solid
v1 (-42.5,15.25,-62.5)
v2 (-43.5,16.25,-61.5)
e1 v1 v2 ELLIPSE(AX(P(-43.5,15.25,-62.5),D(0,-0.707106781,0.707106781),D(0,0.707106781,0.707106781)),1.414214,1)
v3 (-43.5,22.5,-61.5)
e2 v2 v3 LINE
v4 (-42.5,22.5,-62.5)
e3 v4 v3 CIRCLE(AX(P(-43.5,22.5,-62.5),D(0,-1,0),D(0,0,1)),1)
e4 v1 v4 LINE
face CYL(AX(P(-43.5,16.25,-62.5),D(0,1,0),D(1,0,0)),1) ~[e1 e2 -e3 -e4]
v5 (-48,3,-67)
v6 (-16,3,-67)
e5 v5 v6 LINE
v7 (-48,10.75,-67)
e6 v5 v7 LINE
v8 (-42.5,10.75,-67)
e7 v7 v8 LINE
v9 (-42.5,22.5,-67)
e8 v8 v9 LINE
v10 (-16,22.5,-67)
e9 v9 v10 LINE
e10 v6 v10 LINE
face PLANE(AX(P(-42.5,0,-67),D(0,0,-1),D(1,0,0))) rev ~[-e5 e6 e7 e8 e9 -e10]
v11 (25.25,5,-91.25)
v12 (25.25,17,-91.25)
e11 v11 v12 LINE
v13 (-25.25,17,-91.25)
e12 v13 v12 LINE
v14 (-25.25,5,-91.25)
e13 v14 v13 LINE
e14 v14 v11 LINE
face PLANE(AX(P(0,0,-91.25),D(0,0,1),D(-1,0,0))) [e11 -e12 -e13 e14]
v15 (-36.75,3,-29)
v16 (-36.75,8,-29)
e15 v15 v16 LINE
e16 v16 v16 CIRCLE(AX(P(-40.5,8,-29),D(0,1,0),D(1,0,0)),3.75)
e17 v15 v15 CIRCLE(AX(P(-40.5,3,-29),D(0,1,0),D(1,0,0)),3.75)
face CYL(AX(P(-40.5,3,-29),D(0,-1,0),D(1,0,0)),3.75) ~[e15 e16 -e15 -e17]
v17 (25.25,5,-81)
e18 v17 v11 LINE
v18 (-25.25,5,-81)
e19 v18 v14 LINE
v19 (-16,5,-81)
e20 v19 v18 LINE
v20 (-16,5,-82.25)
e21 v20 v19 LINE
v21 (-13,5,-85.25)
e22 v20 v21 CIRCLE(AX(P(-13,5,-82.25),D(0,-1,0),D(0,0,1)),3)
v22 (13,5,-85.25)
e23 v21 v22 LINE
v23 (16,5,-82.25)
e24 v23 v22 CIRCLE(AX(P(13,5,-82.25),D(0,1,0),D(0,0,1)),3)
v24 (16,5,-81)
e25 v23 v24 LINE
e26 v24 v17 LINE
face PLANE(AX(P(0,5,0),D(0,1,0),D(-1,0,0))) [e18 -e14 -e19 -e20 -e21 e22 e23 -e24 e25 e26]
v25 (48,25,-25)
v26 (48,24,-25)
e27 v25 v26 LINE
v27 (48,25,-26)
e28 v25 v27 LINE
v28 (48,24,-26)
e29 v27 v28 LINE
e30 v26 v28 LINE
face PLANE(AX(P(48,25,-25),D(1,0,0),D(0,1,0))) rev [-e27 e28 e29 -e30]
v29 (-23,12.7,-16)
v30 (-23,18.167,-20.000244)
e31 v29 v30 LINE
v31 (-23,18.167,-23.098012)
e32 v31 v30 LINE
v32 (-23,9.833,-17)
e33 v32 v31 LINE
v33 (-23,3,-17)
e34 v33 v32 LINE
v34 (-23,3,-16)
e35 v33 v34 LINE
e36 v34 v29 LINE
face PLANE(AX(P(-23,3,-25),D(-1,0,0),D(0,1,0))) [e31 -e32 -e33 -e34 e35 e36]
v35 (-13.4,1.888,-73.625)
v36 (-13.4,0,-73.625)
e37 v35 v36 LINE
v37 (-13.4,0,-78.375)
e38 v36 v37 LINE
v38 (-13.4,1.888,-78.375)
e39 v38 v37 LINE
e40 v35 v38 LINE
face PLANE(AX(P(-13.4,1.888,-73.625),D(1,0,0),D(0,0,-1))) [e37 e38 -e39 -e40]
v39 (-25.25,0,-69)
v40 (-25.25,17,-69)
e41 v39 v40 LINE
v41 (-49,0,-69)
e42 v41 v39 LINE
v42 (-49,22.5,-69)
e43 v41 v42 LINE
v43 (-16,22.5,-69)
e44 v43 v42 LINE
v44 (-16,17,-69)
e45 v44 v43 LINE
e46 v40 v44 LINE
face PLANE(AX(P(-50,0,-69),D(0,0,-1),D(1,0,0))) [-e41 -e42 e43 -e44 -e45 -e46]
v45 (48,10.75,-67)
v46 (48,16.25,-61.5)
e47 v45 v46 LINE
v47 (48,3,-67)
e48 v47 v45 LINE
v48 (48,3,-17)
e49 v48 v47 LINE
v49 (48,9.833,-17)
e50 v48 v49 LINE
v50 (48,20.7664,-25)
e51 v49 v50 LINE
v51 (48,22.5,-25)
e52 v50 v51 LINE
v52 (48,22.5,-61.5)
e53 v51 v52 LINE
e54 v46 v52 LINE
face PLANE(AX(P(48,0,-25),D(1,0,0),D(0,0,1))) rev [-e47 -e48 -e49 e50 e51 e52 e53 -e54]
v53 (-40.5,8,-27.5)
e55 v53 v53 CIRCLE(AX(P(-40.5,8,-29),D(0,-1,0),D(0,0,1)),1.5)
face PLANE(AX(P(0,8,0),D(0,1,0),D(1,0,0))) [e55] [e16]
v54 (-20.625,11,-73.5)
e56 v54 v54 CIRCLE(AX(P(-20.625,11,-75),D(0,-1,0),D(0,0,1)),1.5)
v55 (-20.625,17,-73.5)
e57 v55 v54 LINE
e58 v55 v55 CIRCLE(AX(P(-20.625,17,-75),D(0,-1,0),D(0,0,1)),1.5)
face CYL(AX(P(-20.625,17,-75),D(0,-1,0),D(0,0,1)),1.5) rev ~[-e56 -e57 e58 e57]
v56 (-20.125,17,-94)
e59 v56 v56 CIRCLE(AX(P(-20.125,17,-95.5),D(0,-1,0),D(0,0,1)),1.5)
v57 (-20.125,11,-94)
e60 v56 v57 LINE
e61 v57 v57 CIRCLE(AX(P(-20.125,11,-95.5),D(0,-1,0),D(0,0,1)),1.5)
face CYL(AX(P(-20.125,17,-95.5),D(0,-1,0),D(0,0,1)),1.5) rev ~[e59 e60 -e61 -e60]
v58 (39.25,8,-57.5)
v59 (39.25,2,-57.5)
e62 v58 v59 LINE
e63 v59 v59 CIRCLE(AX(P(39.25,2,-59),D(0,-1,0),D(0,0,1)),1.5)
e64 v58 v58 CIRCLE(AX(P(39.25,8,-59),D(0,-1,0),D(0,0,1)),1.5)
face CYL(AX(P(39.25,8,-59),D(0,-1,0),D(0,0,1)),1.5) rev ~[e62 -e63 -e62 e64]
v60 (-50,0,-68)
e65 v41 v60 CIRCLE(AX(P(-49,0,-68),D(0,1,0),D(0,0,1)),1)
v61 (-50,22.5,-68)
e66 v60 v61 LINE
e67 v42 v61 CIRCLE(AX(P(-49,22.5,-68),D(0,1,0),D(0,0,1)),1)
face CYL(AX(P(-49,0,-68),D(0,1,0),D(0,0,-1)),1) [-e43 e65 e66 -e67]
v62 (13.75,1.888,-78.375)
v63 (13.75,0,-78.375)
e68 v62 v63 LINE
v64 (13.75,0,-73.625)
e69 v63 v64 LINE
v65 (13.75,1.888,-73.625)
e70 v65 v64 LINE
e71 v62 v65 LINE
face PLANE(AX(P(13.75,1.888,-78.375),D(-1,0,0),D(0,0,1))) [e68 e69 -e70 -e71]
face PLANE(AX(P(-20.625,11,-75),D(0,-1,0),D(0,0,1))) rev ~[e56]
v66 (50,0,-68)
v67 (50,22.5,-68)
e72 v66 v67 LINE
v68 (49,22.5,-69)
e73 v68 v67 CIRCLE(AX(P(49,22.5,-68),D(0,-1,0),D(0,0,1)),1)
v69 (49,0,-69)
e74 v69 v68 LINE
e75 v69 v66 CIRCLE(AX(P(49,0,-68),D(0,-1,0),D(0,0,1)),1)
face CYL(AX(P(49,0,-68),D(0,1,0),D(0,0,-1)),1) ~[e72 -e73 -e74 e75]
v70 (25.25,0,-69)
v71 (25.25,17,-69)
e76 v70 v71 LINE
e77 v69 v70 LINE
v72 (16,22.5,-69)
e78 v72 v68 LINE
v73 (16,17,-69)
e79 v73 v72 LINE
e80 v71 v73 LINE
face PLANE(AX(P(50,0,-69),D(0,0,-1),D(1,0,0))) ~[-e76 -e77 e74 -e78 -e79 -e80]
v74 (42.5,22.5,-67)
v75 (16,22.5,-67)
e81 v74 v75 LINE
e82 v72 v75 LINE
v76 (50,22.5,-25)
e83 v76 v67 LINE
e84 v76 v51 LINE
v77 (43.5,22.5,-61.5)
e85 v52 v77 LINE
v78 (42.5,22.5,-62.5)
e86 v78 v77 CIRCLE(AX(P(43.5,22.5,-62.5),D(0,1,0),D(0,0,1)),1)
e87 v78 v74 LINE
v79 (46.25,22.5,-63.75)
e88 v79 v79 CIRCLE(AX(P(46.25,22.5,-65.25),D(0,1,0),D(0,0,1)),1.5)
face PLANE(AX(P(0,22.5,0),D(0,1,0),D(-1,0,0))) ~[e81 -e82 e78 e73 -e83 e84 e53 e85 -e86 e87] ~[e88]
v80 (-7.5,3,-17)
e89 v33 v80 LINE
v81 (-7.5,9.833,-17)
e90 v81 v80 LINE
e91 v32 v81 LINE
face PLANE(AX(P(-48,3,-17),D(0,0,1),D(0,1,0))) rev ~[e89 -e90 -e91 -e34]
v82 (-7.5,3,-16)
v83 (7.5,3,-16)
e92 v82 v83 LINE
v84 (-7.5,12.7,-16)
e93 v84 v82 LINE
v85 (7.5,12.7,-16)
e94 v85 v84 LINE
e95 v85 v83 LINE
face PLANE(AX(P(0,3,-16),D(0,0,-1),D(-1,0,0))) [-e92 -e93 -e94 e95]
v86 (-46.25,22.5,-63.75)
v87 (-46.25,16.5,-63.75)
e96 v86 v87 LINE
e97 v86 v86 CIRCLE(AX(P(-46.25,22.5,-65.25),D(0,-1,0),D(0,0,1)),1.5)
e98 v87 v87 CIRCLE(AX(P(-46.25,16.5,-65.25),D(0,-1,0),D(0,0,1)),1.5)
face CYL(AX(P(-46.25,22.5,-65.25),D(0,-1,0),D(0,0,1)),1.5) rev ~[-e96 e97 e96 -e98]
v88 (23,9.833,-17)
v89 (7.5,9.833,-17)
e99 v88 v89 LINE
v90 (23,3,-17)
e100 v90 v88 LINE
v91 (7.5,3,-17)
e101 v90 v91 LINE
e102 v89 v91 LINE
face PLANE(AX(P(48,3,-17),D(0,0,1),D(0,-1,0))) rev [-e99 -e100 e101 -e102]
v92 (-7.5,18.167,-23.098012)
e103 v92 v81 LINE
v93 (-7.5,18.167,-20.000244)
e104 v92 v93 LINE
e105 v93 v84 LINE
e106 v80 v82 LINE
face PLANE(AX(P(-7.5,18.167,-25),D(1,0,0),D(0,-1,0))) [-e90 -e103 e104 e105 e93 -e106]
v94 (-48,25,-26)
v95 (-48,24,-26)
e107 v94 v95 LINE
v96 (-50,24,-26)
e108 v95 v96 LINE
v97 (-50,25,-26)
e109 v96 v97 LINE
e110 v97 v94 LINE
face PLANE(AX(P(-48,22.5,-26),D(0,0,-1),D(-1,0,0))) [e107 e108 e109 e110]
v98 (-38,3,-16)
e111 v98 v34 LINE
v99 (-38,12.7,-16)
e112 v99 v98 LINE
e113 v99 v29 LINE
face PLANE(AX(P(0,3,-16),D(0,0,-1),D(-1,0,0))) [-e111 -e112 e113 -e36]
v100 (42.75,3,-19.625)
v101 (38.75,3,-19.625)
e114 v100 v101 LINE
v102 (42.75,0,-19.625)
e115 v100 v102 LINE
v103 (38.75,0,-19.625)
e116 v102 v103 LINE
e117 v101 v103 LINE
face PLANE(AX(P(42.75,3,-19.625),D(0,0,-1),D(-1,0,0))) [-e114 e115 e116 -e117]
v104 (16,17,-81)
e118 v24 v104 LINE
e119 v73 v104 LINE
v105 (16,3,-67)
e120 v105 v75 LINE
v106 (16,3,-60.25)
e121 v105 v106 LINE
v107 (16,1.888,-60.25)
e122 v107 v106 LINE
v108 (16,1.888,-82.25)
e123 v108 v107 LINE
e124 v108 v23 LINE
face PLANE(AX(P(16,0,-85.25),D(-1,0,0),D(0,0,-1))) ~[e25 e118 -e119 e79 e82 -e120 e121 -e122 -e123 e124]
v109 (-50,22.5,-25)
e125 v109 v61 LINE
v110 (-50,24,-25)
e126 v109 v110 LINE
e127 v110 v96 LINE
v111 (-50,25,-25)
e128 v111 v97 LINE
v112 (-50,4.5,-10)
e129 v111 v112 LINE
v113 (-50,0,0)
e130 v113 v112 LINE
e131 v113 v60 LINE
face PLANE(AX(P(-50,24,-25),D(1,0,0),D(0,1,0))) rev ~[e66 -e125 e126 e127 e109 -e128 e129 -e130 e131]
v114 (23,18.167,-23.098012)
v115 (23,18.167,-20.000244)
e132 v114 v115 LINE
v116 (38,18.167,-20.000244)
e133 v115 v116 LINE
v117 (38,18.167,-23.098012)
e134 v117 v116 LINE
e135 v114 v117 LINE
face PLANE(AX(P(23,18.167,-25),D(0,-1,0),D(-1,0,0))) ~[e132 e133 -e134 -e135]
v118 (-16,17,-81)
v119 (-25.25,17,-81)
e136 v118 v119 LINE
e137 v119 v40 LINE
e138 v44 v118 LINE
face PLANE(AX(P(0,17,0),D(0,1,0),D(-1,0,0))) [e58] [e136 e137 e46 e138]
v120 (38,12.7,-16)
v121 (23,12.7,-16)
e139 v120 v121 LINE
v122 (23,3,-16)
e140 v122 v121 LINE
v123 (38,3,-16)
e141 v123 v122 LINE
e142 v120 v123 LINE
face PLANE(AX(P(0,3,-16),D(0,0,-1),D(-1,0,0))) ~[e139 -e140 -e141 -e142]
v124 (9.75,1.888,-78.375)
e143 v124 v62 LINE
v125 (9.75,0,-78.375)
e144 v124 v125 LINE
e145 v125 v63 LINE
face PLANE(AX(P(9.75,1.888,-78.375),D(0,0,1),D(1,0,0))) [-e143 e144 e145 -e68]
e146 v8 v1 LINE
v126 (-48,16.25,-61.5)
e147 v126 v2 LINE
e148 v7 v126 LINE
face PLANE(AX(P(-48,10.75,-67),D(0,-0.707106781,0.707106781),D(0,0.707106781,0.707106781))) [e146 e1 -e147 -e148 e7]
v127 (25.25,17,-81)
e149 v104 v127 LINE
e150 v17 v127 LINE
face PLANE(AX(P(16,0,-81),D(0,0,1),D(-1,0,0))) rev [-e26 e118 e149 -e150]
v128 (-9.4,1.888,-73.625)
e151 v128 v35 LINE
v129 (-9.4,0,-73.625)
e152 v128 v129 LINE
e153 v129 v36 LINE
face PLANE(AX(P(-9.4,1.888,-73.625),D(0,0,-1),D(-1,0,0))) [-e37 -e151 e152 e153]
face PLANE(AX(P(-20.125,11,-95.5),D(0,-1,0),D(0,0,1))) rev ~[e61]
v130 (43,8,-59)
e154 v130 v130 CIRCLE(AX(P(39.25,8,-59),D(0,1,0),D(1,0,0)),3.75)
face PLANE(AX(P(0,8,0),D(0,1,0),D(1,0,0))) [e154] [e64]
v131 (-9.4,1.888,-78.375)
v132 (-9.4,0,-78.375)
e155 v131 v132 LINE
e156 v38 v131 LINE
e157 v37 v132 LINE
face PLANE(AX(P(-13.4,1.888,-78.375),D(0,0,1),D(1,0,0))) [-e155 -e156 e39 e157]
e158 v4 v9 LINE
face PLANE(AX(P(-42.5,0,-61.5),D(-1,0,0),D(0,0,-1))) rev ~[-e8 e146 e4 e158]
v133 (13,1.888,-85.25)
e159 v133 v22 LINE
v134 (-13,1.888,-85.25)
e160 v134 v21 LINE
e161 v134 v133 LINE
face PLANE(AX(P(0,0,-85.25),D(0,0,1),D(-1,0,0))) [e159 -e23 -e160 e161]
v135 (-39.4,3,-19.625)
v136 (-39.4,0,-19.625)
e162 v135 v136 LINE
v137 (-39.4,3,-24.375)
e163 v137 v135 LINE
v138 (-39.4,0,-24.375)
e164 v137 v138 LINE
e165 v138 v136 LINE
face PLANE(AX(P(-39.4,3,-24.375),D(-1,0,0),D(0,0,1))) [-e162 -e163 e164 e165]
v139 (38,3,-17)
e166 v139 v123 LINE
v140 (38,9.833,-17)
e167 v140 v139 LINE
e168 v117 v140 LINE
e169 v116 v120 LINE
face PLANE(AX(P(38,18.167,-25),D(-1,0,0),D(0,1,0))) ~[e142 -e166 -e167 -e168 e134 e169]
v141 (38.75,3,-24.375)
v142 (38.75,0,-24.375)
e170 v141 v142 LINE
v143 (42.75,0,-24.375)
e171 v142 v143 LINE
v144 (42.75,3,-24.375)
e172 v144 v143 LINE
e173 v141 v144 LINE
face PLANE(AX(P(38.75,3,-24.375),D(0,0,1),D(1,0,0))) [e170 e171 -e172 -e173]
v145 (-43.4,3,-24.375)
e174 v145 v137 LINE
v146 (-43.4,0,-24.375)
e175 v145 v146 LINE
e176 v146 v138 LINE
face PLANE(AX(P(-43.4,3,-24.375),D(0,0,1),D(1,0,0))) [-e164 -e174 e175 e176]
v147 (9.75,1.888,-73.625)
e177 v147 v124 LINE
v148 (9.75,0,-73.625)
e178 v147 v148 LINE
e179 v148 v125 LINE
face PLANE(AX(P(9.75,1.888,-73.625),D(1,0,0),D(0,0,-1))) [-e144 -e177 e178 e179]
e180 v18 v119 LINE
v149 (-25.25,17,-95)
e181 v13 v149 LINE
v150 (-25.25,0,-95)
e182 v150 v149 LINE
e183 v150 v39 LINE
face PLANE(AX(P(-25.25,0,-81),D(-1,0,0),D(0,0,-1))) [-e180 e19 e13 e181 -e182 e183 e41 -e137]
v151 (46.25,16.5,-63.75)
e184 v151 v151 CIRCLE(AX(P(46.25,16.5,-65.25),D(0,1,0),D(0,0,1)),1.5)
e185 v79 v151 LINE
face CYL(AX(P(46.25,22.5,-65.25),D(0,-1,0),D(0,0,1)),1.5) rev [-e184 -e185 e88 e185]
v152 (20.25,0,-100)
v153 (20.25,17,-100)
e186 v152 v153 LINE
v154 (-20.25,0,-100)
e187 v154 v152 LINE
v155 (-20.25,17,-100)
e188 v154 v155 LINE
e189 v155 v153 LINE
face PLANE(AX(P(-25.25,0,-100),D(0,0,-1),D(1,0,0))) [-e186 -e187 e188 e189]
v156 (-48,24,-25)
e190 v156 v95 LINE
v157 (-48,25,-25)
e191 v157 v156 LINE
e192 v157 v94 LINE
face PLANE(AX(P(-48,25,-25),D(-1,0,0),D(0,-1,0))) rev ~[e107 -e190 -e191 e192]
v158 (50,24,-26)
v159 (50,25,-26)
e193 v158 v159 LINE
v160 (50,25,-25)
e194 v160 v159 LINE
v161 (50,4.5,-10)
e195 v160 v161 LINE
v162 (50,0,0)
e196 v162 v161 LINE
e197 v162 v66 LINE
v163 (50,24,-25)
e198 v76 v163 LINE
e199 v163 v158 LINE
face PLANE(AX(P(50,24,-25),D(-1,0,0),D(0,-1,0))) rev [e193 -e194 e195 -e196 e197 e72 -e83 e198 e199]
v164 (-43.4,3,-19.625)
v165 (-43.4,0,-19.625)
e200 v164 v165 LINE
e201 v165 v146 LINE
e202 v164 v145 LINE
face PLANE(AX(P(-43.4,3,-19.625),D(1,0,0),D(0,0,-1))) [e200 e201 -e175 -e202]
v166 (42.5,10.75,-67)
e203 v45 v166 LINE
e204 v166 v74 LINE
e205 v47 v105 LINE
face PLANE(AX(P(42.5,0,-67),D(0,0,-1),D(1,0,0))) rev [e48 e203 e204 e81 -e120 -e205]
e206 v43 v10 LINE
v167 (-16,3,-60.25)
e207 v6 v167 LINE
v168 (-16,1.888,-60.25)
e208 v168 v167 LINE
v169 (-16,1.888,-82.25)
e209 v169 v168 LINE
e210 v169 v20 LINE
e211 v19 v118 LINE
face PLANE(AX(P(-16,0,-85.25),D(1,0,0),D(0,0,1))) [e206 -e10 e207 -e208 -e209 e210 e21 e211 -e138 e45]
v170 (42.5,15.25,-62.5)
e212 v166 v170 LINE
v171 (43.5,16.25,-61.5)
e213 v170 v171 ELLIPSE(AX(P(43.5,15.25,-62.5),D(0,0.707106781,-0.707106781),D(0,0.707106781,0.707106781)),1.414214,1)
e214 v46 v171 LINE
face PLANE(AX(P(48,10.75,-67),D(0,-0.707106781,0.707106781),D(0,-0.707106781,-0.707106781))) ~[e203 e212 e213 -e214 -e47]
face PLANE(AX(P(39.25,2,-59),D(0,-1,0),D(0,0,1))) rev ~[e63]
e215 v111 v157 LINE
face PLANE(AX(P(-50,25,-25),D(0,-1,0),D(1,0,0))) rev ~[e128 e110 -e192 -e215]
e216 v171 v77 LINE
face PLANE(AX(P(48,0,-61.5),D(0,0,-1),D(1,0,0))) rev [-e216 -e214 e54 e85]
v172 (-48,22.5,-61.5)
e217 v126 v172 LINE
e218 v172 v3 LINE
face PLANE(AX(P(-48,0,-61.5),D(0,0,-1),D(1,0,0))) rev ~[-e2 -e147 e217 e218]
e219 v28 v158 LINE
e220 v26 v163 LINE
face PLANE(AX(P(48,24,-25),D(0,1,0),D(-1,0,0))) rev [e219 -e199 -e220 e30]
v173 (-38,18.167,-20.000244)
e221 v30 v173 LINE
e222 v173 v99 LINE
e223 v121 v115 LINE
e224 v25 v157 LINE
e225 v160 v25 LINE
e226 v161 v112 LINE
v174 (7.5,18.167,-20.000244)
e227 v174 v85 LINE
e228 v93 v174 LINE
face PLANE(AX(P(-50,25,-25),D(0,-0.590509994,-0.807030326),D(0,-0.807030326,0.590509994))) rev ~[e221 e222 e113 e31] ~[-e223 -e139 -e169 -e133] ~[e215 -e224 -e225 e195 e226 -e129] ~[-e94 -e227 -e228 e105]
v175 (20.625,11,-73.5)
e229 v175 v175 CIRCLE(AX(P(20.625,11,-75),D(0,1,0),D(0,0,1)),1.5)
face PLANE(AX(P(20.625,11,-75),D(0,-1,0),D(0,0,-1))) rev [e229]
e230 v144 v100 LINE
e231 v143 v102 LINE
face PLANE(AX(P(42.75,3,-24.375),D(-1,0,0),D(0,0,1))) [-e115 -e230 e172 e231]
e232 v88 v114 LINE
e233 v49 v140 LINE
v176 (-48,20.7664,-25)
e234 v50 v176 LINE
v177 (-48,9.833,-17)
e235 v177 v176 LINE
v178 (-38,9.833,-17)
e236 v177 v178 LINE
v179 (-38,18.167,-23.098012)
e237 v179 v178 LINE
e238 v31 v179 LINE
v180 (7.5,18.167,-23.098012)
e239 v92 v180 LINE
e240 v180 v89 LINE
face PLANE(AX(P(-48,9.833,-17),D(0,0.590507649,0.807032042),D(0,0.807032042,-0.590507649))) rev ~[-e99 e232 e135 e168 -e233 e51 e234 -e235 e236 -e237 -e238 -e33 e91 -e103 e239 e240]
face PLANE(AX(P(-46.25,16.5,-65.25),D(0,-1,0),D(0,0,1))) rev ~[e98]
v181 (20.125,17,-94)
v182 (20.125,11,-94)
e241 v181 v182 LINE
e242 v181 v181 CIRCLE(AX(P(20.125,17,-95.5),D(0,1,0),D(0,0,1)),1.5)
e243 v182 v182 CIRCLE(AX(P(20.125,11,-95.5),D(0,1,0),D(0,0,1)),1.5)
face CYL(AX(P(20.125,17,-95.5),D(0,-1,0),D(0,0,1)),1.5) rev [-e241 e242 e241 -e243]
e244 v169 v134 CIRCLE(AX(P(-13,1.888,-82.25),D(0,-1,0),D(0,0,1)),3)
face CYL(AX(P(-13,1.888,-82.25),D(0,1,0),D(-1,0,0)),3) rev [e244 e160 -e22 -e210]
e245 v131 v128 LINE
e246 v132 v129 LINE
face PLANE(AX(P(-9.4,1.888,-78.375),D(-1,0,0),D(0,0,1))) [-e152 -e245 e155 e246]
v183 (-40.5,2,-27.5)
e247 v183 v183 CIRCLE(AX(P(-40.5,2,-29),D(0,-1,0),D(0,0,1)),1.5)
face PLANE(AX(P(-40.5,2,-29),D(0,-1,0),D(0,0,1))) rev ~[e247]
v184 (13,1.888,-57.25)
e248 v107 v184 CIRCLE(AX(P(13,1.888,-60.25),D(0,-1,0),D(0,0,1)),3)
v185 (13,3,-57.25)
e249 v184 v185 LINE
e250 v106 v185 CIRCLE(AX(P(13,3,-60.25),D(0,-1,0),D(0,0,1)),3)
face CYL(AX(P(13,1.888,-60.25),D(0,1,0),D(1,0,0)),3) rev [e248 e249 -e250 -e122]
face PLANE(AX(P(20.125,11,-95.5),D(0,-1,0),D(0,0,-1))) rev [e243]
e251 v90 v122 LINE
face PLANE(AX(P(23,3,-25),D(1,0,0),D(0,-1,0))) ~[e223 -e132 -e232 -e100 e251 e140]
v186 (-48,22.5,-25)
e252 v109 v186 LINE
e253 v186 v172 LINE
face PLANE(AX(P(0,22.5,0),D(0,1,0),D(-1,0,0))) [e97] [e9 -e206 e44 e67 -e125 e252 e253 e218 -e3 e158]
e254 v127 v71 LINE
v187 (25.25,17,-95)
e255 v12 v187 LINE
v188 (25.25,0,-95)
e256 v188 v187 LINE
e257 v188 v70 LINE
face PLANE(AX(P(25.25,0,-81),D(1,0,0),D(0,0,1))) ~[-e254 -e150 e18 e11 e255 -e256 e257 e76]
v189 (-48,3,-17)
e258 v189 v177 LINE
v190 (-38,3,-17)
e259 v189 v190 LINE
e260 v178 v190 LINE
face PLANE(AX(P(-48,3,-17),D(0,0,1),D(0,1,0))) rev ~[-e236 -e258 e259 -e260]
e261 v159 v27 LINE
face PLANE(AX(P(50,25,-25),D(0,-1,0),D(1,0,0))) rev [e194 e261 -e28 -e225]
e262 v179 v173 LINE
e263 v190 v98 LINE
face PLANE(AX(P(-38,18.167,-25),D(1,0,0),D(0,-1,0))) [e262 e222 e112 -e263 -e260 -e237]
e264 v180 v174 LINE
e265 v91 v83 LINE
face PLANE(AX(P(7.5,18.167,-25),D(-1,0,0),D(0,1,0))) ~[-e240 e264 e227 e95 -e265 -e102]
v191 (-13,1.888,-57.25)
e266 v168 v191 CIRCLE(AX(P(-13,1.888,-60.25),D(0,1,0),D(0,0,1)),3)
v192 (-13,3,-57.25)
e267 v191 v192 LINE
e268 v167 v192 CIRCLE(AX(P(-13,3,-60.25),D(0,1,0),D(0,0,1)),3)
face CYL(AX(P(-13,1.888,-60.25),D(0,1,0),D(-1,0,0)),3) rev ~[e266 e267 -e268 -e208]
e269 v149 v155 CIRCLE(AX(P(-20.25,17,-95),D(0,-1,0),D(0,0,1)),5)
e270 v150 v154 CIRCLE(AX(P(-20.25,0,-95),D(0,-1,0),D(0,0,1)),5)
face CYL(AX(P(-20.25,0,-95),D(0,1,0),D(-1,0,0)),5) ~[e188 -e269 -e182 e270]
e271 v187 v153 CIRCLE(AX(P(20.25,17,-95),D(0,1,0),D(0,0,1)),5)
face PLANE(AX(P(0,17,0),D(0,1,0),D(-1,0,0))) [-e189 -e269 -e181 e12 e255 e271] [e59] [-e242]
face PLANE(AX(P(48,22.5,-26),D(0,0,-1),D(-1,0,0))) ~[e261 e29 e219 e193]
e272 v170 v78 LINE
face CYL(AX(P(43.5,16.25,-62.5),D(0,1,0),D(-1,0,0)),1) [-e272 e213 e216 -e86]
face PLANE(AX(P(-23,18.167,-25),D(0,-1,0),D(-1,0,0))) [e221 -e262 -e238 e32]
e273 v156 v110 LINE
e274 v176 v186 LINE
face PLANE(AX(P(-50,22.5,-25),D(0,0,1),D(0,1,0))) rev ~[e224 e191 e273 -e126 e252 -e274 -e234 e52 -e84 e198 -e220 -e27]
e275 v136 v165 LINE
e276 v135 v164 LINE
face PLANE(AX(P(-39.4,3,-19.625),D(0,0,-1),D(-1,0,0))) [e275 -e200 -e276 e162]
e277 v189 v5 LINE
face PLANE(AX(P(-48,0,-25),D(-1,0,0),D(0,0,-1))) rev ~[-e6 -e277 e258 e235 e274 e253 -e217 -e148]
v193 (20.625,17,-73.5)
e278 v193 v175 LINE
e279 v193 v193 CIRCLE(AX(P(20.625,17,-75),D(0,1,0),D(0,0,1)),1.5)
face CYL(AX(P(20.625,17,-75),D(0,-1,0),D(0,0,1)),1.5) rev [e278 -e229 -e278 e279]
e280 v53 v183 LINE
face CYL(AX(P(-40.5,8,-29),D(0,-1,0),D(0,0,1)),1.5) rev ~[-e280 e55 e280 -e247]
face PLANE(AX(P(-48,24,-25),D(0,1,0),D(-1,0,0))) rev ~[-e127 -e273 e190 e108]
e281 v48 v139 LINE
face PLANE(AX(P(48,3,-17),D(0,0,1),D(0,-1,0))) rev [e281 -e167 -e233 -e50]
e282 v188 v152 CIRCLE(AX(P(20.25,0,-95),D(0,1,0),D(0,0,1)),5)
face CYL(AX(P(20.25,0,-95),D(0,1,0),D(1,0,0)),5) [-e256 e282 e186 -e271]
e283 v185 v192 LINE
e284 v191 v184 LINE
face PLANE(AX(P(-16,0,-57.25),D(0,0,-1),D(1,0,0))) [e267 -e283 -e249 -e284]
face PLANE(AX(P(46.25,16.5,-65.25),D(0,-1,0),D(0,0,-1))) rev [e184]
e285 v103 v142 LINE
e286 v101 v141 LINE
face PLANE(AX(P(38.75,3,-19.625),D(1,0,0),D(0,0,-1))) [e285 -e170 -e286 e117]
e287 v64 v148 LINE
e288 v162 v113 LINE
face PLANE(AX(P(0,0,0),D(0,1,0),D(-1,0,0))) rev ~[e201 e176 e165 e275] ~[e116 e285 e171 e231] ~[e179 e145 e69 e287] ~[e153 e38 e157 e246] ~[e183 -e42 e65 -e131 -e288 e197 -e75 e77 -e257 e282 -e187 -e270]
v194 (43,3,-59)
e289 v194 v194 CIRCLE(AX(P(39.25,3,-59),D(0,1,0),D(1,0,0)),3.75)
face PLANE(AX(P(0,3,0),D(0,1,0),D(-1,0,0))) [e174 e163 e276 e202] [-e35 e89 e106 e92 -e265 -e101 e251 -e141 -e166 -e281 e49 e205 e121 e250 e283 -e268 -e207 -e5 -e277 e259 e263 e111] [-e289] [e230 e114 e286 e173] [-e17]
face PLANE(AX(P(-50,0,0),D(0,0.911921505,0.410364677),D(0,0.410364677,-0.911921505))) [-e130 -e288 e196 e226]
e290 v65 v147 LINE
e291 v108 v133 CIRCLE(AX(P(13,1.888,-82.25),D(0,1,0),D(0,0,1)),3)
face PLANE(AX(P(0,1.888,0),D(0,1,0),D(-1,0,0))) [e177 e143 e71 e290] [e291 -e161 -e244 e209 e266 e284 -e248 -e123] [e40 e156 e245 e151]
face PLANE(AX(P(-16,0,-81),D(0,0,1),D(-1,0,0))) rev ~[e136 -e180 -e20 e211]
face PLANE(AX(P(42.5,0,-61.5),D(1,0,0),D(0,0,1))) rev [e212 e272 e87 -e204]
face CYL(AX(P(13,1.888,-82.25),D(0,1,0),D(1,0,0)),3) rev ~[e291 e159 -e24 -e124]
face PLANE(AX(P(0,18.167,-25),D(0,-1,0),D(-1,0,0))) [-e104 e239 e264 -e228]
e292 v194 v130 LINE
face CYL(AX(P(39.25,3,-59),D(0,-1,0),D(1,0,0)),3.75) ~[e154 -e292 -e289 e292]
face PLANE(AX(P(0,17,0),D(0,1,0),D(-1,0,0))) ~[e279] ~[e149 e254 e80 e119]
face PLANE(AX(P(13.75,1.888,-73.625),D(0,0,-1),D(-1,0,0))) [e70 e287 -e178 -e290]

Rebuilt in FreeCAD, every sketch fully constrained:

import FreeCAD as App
import Part
import Sketcher
Q = App.Units.Quantity


def edges_at(feature, points):
    """Names of the edges that pass closest to the given points."""
    edges = feature.Shape.Edges
    near = lambda p: min(range(len(edges)), key=lambda i: edges[i].distToShape(Part.Vertex(*p))[0])
    return sorted({f"Edge{near(p) + 1}" for p in points})


def add_polygon(sketch, points):
    """Adds a closed chain of lines whose ends are joined by coincident constraints."""
    first, n = sketch.GeometryCount, len(points)
    for a, b in zip(points, points[1:] + points[:1]):
        sketch.addGeometry(Part.LineSegment(App.Vector(*a, 0), App.Vector(*b, 0)), False)
    for i in range(n):
        sketch.addConstraint(Sketcher.Constraint("Coincident", first + i, 2, first + (i + 1) % n, 1))

doc = App.newDocument("Part")
body = doc.addObject("PartDesign::Body", "Body")
body.AllowCompound = True

sketch1 = doc.addObject("Sketcher::SketchObject", "Sketch")
body.addObject(sketch1)
sketch1.AttachmentSupport = (doc.XZ_Plane, [""])
sketch1.MapMode = "FlatFace"
add_polygon(sketch1, [(-48, -25), (0, -25), (0, -57.25), (-16, -57.25), (-16, -67), (-42.5, -67), (-42.5, -61.5), (-48, -61.5)])
sketch1.addConstraint([
    Sketcher.Constraint("Horizontal", 0),
    Sketcher.Constraint("Vertical", 1),
    Sketcher.Constraint("Horizontal", 2),
    Sketcher.Constraint("Vertical", 3),
    Sketcher.Constraint("Horizontal", 4),
    Sketcher.Constraint("Vertical", 5),
    Sketcher.Constraint("Horizontal", 6),
    Sketcher.Constraint("Vertical", 7),
    Sketcher.Constraint("PointOnObject", 0, 2, -2),
    Sketcher.Constraint("Equal", 6, 5),
    Sketcher.Constraint("DistanceX", 2, 2, 2, 1, Q("16 mm")),
    Sketcher.Constraint("DistanceY", 0, 2, -1, 1, Q("25 mm")),
    Sketcher.Constraint("DistanceX", 0, 1, 0, 2, Q("48 mm")),
    Sketcher.Constraint("DistanceX", 4, 2, 4, 1, Q("26.5 mm")),
    Sketcher.Constraint("DistanceY", 7, 1, 7, 2, Q("36.5 mm")),
    Sketcher.Constraint("DistanceY", 1, 2, 1, 1, Q("32.25 mm")),
])
pad1 = doc.addObject("PartDesign::Pad", "Pad")
body.addObject(pad1)
pad1.Profile = sketch1
pad1.Length = 3
pad1.Reversed = True

sketch2 = doc.addObject("Sketcher::SketchObject", "Sketch001")
body.addObject(sketch2)
sketch2.AttachmentSupport = (doc.XZ_Plane, [""])
sketch2.MapMode = "FlatFace"
add_polygon(sketch2, [(-16, -57.25), (0, -57.25), (0, -85.25), (-16, -85.25)])
sketch2.addConstraint([
    Sketcher.Constraint("Horizontal", 0),
    Sketcher.Constraint("Vertical", 1),
    Sketcher.Constraint("Horizontal", 2),
    Sketcher.Constraint("Vertical", 3),
    Sketcher.Constraint("PointOnObject", 0, 2, -2),
    Sketcher.Constraint("DistanceX", 0, 1, 0, 2, Q("16 mm")),
    Sketcher.Constraint("DistanceY", 1, 2, 1, 1, Q("28 mm")),
    Sketcher.Constraint("DistanceY", 0, 2, -1, 1, Q("57.25 mm")),
])
pad2 = doc.addObject("PartDesign::Pad", "Pad001")
body.addObject(pad2)
pad2.Profile = sketch2
pad2.Length = 1.888
pad2.Reversed = True

sketch3 = doc.addObject("Sketcher::SketchObject", "Sketch002")
body.addObject(sketch3)
sketch3.AttachmentSupport = (doc.XZ_Plane, [""])
sketch3.MapMode = "FlatFace"
add_polygon(sketch3, [(-50, 0), (0, 0), (0, -25), (-48, -25), (-48, -61.5), (-42.5, -61.5), (-42.5, -67), (-16, -67), (-16, -69), (-50, -69)])
sketch3.addConstraint([
    Sketcher.Constraint("Horizontal", 0),
    Sketcher.Constraint("Vertical", 1),
    Sketcher.Constraint("Horizontal", 2),
    Sketcher.Constraint("Vertical", 3),
    Sketcher.Constraint("Horizontal", 4),
    Sketcher.Constraint("Vertical", 5),
    Sketcher.Constraint("Horizontal", 6),
    Sketcher.Constraint("Vertical", 7),
    Sketcher.Constraint("Horizontal", 8),
    Sketcher.Constraint("Vertical", 9),
    Sketcher.Constraint("Coincident", 0, 2, -1, 1),
    Sketcher.Constraint("Equal", 4, 5),
    Sketcher.Constraint("DistanceX", 0, 1, 0, 2, Q("50 mm")),
    Sketcher.Constraint("DistanceY", 1, 2, 1, 1, Q("25 mm")),
    Sketcher.Constraint("DistanceY", 7, 2, 7, 1, Q("2 mm")),
    Sketcher.Constraint("DistanceY", 9, 1, 9, 2, Q("69 mm")),
    Sketcher.Constraint("DistanceX", 6, 2, -1, 1, Q("16 mm")),
    Sketcher.Constraint("DistanceX", 8, 2, 3, 2, Q("2 mm")),
    Sketcher.Constraint("DistanceY", 7, 2, 4, 2, Q("7.5 mm")),
])
pad3 = doc.addObject("PartDesign::Pad", "Pad002")
body.addObject(pad3)
pad3.Profile = sketch3
pad3.Length = 22.5
pad3.Reversed = True

sketch4 = doc.addObject("Sketcher::SketchObject", "Sketch003")
body.addObject(sketch4)
sketch4.AttachmentSupport = (doc.XZ_Plane, [""])
sketch4.MapMode = "FlatFace"
add_polygon(sketch4, [(-25.25, -81), (-25.25, -69), (-16, -69), (-16, -81)])
add_polygon(sketch4, [(-25.25, -91.25), (0, -91.25), (0, -100), (-25.25, -100)])
sketch4.addConstraint([
    Sketcher.Constraint("Vertical", 0),
    Sketcher.Constraint("Horizontal", 1),
    Sketcher.Constraint("Vertical", 2),
    Sketcher.Constraint("Horizontal", 3),
    Sketcher.Constraint("Horizontal", 4),
    Sketcher.Constraint("Vertical", 5),
    Sketcher.Constraint("Horizontal", 6),
    Sketcher.Constraint("Vertical", 7),
    Sketcher.Constraint("PointOnObject", 4, 2, -2),
    Sketcher.Constraint("Vertical", 3, 2, 6, 2),
    Sketcher.Constraint("DistanceY", 0, 1, 0, 2, Q("12 mm")),
    Sketcher.Constraint("DistanceY", 0, 2, -1, 1, Q("69 mm")),
    Sketcher.Constraint("DistanceX", 1, 2, -1, 1, Q("16 mm")),
    Sketcher.Constraint("DistanceX", 4, 1, 4, 2, Q("25.25 mm")),
    Sketcher.Constraint("DistanceY", 5, 2, 5, 1, Q("8.75 mm")),
    Sketcher.Constraint("DistanceY", 4, 2, 2, 2, Q("10.25 mm")),
])
pad4 = doc.addObject("PartDesign::Pad", "Pad003")
body.addObject(pad4)
pad4.Profile = sketch4
pad4.Length = 17
pad4.Reversed = True

sketch5 = doc.addObject("Sketcher::SketchObject", "Sketch004")
body.addObject(sketch5)
sketch5.AttachmentSupport = (doc.XZ_Plane, [""])
sketch5.MapMode = "FlatFace"
add_polygon(sketch5, [(-16, -85.25), (0, -85.25), (0, -91.25), (-25.25, -91.25), (-25.25, -81), (-16, -81)])
sketch5.addConstraint([
    Sketcher.Constraint("Horizontal", 0),
    Sketcher.Constraint("Vertical", 1),
    Sketcher.Constraint("Horizontal", 2),
    Sketcher.Constraint("Vertical", 3),
    Sketcher.Constraint("Horizontal", 4),
    Sketcher.Constraint("Vertical", 5),
    Sketcher.Constraint("PointOnObject", 0, 2, -2),
    Sketcher.Constraint("DistanceX", 0, 1, 0, 2, Q("16 mm")),
    Sketcher.Constraint("DistanceY", 1, 2, 1, 1, Q("6 mm")),
    Sketcher.Constraint("DistanceX", 2, 2, 2, 1, Q("25.25 mm")),
    Sketcher.Constraint("DistanceY", 3, 1, 3, 2, Q("10.25 mm")),
    Sketcher.Constraint("DistanceY", 3, 2, -1, 1, Q("81 mm")),
])
pad5 = doc.addObject("PartDesign::Pad", "Pad004")
body.addObject(pad5)
pad5.Profile = sketch5
pad5.Length = 5
pad5.Reversed = True

sketch6 = doc.addObject("Sketcher::SketchObject", "Sketch005")
body.addObject(sketch6)
sketch6.AttachmentSupport = (doc.YZ_Plane, [""])
sketch6.MapMode = "FlatFace"
sketch6.AttachmentOffset = App.Placement(App.Vector(0, 0, -48), App.Rotation())
add_polygon(sketch6, [(3, -61.5), (3, -67), (10.75, -67), (16.25, -61.5)])
sketch6.addConstraint([
    Sketcher.Constraint("Vertical", 0),
    Sketcher.Constraint("Horizontal", 1),
    Sketcher.Constraint("Horizontal", 3),
    Sketcher.Constraint("Angle", 2, Q("45 deg")),
    Sketcher.Constraint("DistanceY", 0, 2, 0, 1, Q("5.5 mm")),
    Sketcher.Constraint("DistanceX", -1, 1, 0, 2, Q("3 mm")),
    Sketcher.Constraint("DistanceY", 0, 2, -1, 1, Q("67 mm")),
    Sketcher.Constraint("DistanceX", 1, 1, 1, 2, Q("7.75 mm")),
])
pocket1 = doc.addObject("PartDesign::Pocket", "Pocket")
body.addObject(pocket1)
pocket1.Profile = sketch6
pocket1.Length = 5.5
pocket1.Reversed = True

sketch7 = doc.addObject("Sketcher::SketchObject", "Sketch006")
body.addObject(sketch7)
sketch7.AttachmentSupport = (doc.YZ_Plane, [""])
sketch7.MapMode = "FlatFace"
sketch7.AttachmentOffset = App.Placement(App.Vector(0, 0, -50), App.Rotation())
add_polygon(sketch7, [(4.5, -10), (0, 0), (22.5, 0), (22.5, -23.170732)])
sketch7.addConstraint([
    Sketcher.Constraint("Horizontal", 1),
    Sketcher.Constraint("Vertical", 2),
    Sketcher.Constraint("Coincident", 0, 2, -1, 1),
    Sketcher.Constraint("DistanceY", 3, 2, -1, 1, Q("10 mm")),
    Sketcher.Constraint("DistanceX", -1, 1, 3, 2, Q("4.5 mm")),
    Sketcher.Constraint("DistanceX", 1, 1, 1, 2, Q("22.5 mm")),
    Sketcher.Constraint("Distance", 3, Q("22.304 mm")),
])
pocket2 = doc.addObject("PartDesign::Pocket", "Pocket001")
body.addObject(pocket2)
pocket2.Profile = sketch7
pocket2.Type = "ThroughAll"
pocket2.Reversed = True

sketch8 = doc.addObject("Sketcher::SketchObject", "Sketch007")
body.addObject(sketch8)
sketch8.AttachmentSupport = (doc.YZ_Plane, [""])
sketch8.MapMode = "FlatFace"
sketch8.AttachmentOffset = App.Placement(App.Vector(0, 0, -50), App.Rotation())
add_polygon(sketch8, [(22.5, -25), (22.5, -23.170732), (25, -25)])
sketch8.addConstraint([
    Sketcher.Constraint("Vertical", 0),
    Sketcher.Constraint("Horizontal", 2),
    Sketcher.Constraint("DistanceX", -1, 1, 1, 2, Q("25 mm")),
    Sketcher.Constraint("DistanceY", 1, 2, -1, 1, Q("25 mm")),
    Sketcher.Constraint("DistanceX", 2, 2, 2, 1, Q("2.5 mm")),
    Sketcher.Constraint("DistanceY", 0, 1, 0, 2, Q("1.8293 mm")),
])
pad6 = doc.addObject("PartDesign::Pad", "Pad005")
body.addObject(pad6)
pad6.Profile = sketch8
pad6.Length = 50

sketch9 = doc.addObject("Sketcher::SketchObject", "Sketch008")
body.addObject(sketch9)
sketch9.AttachmentSupport = (doc.XY_Plane, [""])
sketch9.MapMode = "FlatFace"
sketch9.AttachmentOffset = App.Placement(App.Vector(0, 0, -25), App.Rotation())
add_polygon(sketch9, [(-38, 18.167), (-23, 18.167), (-23, 3), (-38, 3)])
add_polygon(sketch9, [(-7.5, 18.167), (0, 18.167), (0, 3), (-7.5, 3)])
sketch9.addConstraint([
    Sketcher.Constraint("Horizontal", 0),
    Sketcher.Constraint("Vertical", 1),
    Sketcher.Constraint("Horizontal", 2),
    Sketcher.Constraint("Vertical", 3),
    Sketcher.Constraint("Horizontal", 4),
    Sketcher.Constraint("Vertical", 5),
    Sketcher.Constraint("Horizontal", 6),
    Sketcher.Constraint("Vertical", 7),
    Sketcher.Constraint("PointOnObject", 4, 2, -2),
    Sketcher.Constraint("Horizontal", 3, 2, 4, 2),
    Sketcher.Constraint("Horizontal", 2, 2, 5, 2),
    Sketcher.Constraint("DistanceX", 0, 1, 0, 2, Q("15 mm")),
    Sketcher.Constraint("DistanceX", 4, 1, 4, 2, Q("7.5 mm")),
    Sketcher.Constraint("DistanceY", -1, 1, 1, 2, Q("3 mm")),
    Sketcher.Constraint("DistanceX", 1, 2, 6, 2, Q("15.5 mm")),
    Sketcher.Constraint("DistanceY", 1, 2, 1, 1, Q("15.167 mm")),
])
pocket3 = doc.addObject("PartDesign::Pocket", "Pocket002")
body.addObject(pocket3)
pocket3.Profile = sketch9
pocket3.Length = 9
pocket3.Reversed = True

sketch10 = doc.addObject("Sketcher::SketchObject", "Sketch009")
body.addObject(sketch10)
sketch10.AttachmentSupport = (doc.YZ_Plane, [""])
sketch10.MapMode = "FlatFace"
sketch10.AttachmentOffset = App.Placement(App.Vector(0, 0, -48), App.Rotation())
add_polygon(sketch10, [(3, -25), (20.7664, -25), (9.833, -17), (3, -17)])
sketch10.addConstraint([
    Sketcher.Constraint("Horizontal", 0),
    Sketcher.Constraint("Horizontal", 2),
    Sketcher.Constraint("Vertical", 3),
    Sketcher.Constraint("DistanceY", 3, 2, 3, 1, Q("8 mm")),
    Sketcher.Constraint("DistanceY", 0, 2, -1, 1, Q("25 mm")),
    Sketcher.Constraint("DistanceX", -1, 1, 2, 2, Q("3 mm")),
    Sketcher.Constraint("DistanceX", 2, 2, 2, 1, Q("6.833 mm")),
    Sketcher.Constraint("DistanceX", 0, 1, 0, 2, Q("17.7664 mm")),
])
pocket4 = doc.addObject("PartDesign::Pocket", "Pocket003")
body.addObject(pocket4)
pocket4.Profile = sketch10
pocket4.Type = "ThroughAll"
pocket4.Reversed = True

sketch11 = doc.addObject("Sketcher::SketchObject", "Sketch010")
body.addObject(sketch11)
sketch11.AttachmentSupport = (doc.XY_Plane, [""])
sketch11.MapMode = "FlatFace"
sketch11.AttachmentOffset = App.Placement(App.Vector(0, 0, -25), App.Rotation())
add_polygon(sketch11, [(-48, 24), (-50, 24), (-50, 25), (-48, 25)])
sketch11.addConstraint([
    Sketcher.Constraint("Horizontal", 0),
    Sketcher.Constraint("Vertical", 1),
    Sketcher.Constraint("Horizontal", 2),
    Sketcher.Constraint("Vertical", 3),
    Sketcher.Constraint("DistanceY", 1, 1, 1, 2, Q("1 mm")),
    Sketcher.Constraint("DistanceX", 0, 2, 0, 1, Q("2 mm")),
    Sketcher.Constraint("DistanceX", 0, 2, -1, 1, Q("50 mm")),
    Sketcher.Constraint("DistanceY", -1, 1, 0, 2, Q("24 mm")),
])
pad7 = doc.addObject("PartDesign::Pad", "Pad006")
body.addObject(pad7)
pad7.Profile = sketch11
pad7.Length = 1
pad7.Reversed = True

sketch12 = doc.addObject("Sketcher::SketchObject", "Sketch011")
body.addObject(sketch12)
sketch12.AttachmentSupport = (doc.XZ_Plane, [""])
sketch12.MapMode = "FlatFace"
sketch12.AttachmentOffset = App.Placement(App.Vector(0, 0, -22.5), App.Rotation())
sketch12.addGeometry(Part.Circle(App.Vector(-46.25, -65.25, 0), App.Vector(0, 0, 1), 1.5), False)
sketch12.addConstraint([
    Sketcher.Constraint("Diameter", 0, Q("3 mm")),
    Sketcher.Constraint("DistanceX", 0, 3, -1, 1, Q("46.25 mm")),
    Sketcher.Constraint("DistanceY", 0, 3, -1, 1, Q("65.25 mm")),
])
doc.recompute()
hole = doc.addObject("PartDesign::Hole", "Hole")
body.addObject(hole)
hole.Profile = sketch12
hole.ThreadType = "None"
hole.Diameter = 3
hole.DepthType = "Dimension"
hole.Depth = 6
hole.DrillPoint = "Flat"
hole.Reversed = True

sketch13 = doc.addObject("Sketcher::SketchObject", "Sketch012")
body.addObject(sketch13)
sketch13.AttachmentSupport = (doc.XZ_Plane, [""])
sketch13.MapMode = "FlatFace"
sketch13.AttachmentOffset = App.Placement(App.Vector(0, 0, -17), App.Rotation())
sketch13.addGeometry(Part.Circle(App.Vector(-20.625, -75, 0), App.Vector(0, 0, 1), 1.5), False)
sketch13.addConstraint([
    Sketcher.Constraint("Diameter", 0, Q("3 mm")),
    Sketcher.Constraint("DistanceY", 0, 3, -1, 1, Q("75 mm")),
    Sketcher.Constraint("DistanceX", 0, 3, -1, 1, Q("20.625 mm")),
])
doc.recompute()
hole2 = doc.addObject("PartDesign::Hole", "Hole001")
body.addObject(hole2)
hole2.Profile = sketch13
hole2.ThreadType = "None"
hole2.Diameter = 3
hole2.DepthType = "Dimension"
hole2.Depth = 6
hole2.DrillPoint = "Flat"
hole2.Reversed = True

sketch14 = doc.addObject("Sketcher::SketchObject", "Sketch013")
body.addObject(sketch14)
sketch14.AttachmentSupport = (doc.XZ_Plane, [""])
sketch14.MapMode = "FlatFace"
sketch14.AttachmentOffset = App.Placement(App.Vector(0, 0, -17), App.Rotation())
sketch14.addGeometry(Part.Circle(App.Vector(-20.125, -95.5, 0), App.Vector(0, 0, 1), 1.5), False)
sketch14.addConstraint([
    Sketcher.Constraint("Diameter", 0, Q("3 mm")),
    Sketcher.Constraint("DistanceY", 0, 3, -1, 1, Q("95.5 mm")),
    Sketcher.Constraint("DistanceX", 0, 3, -1, 1, Q("20.125 mm")),
])
doc.recompute()
hole3 = doc.addObject("PartDesign::Hole", "Hole002")
body.addObject(hole3)
hole3.Profile = sketch14
hole3.ThreadType = "None"
hole3.Diameter = 3
hole3.DepthType = "Dimension"
hole3.Depth = 6
hole3.DrillPoint = "Flat"
hole3.Reversed = True
doc.recompute()

fillet = doc.addObject("PartDesign::Fillet", "Fillet")
body.addObject(fillet)
fillet.Base = (hole3, edges_at(hole3, [(-16, 2.444, -57.25), (-16, 3.444, -85.25)]))
fillet.Radius = 3
doc.recompute()

fillet2 = doc.addObject("PartDesign::Fillet", "Fillet001")
body.addObject(fillet2)
fillet2.Base = (fillet, edges_at(fillet, [(-42.5, 19.375, -61.5), (-50, 11.25, -69)]))
fillet2.Radius = 1
doc.recompute()

fillet3 = doc.addObject("PartDesign::Fillet", "Fillet002")
body.addObject(fillet3)
fillet3.Base = (fillet2, edges_at(fillet2, [(-25.25, 8.5, -100)]))
fillet3.Radius = 5
doc.recompute()

mirrored = doc.addObject("PartDesign::Mirrored", "Mirrored")
body.addObject(mirrored)
mirrored.TransformMode = "Transform body"
mirrored.MirrorPlane = (doc.YZ_Plane, [""])
body.Tip = mirrored

sketch15 = doc.addObject("Sketcher::SketchObject", "Sketch014")
body.addObject(sketch15)
sketch15.AttachmentSupport = (doc.XZ_Plane, [""])
sketch15.MapMode = "FlatFace"
sketch15.AttachmentOffset = App.Placement(App.Vector(0, 0, -1.888), App.Rotation())
add_polygon(sketch15, [(-13.4, -73.625), (-9.4, -73.625), (-9.4, -78.375), (-13.4, -78.375)])
add_polygon(sketch15, [(9.75, -73.625), (13.75, -73.625), (13.75, -78.375), (9.75, -78.375)])
sketch15.addConstraint([
    Sketcher.Constraint("Horizontal", 0),
    Sketcher.Constraint("Vertical", 1),
    Sketcher.Constraint("Horizontal", 2),
    Sketcher.Constraint("Vertical", 3),
    Sketcher.Constraint("Horizontal", 4),
    Sketcher.Constraint("Vertical", 5),
    Sketcher.Constraint("Horizontal", 6),
    Sketcher.Constraint("Vertical", 7),
    Sketcher.Constraint("Horizontal", 3, 2, 4, 2),
    Sketcher.Constraint("Horizontal", 2, 2, 5, 2),
    Sketcher.Constraint("Equal", 2, 4),
    Sketcher.Constraint("DistanceX", 0, 1, 0, 2, Q("4 mm")),
    Sketcher.Constraint("DistanceY", 1, 2, 1, 1, Q("4.75 mm")),
    Sketcher.Constraint("DistanceX", 0, 2, -1, 1, Q("9.4 mm")),
    Sketcher.Constraint("DistanceX", -1, 1, 4, 2, Q("13.75 mm")),
    Sketcher.Constraint("DistanceY", 0, 2, -1, 1, Q("73.625 mm")),
])
pocket5 = doc.addObject("PartDesign::Pocket", "Pocket004")
body.addObject(pocket5)
pocket5.Profile = sketch15
pocket5.Type = "ThroughAll"
pocket5.Reversed = True

sketch16 = doc.addObject("Sketcher::SketchObject", "Sketch015")
body.addObject(sketch16)
sketch16.AttachmentSupport = (doc.XZ_Plane, [""])
sketch16.MapMode = "FlatFace"
sketch16.AttachmentOffset = App.Placement(App.Vector(0, 0, -3), App.Rotation())
add_polygon(sketch16, [(-43.4, -19.625), (-39.4, -19.625), (-39.4, -24.375), (-43.4, -24.375)])
add_polygon(sketch16, [(38.75, -19.625), (42.75, -19.625), (42.75, -24.375), (38.75, -24.375)])
sketch16.addConstraint([
    Sketcher.Constraint("Horizontal", 0),
    Sketcher.Constraint("Vertical", 1),
    Sketcher.Constraint("Horizontal", 2),
    Sketcher.Constraint("Vertical", 3),
    Sketcher.Constraint("Horizontal", 4),
    Sketcher.Constraint("Vertical", 5),
    Sketcher.Constraint("Horizontal", 6),
    Sketcher.Constraint("Vertical", 7),
    Sketcher.Constraint("Horizontal", 3, 2, 4, 2),
    Sketcher.Constraint("Horizontal", 2, 2, 5, 2),
    Sketcher.Constraint("Equal", 2, 4),
    Sketcher.Constraint("DistanceX", 0, 1, 0, 2, Q("4 mm")),
    Sketcher.Constraint("DistanceY", 1, 2, 1, 1, Q("4.75 mm")),
    Sketcher.Constraint("DistanceX", 0, 2, -1, 1, Q("39.4 mm")),
    Sketcher.Constraint("DistanceX", -1, 1, 4, 2, Q("42.75 mm")),
    Sketcher.Constraint("DistanceY", 0, 2, -1, 1, Q("19.625 mm")),
])
pocket6 = doc.addObject("PartDesign::Pocket", "Pocket005")
body.addObject(pocket6)
pocket6.Profile = sketch16
pocket6.Type = "ThroughAll"
pocket6.Reversed = True

sketch17 = doc.addObject("Sketcher::SketchObject", "Sketch016")
body.addObject(sketch17)
sketch17.AttachmentSupport = (doc.XZ_Plane, [""])
sketch17.MapMode = "FlatFace"
sketch17.AttachmentOffset = App.Placement(App.Vector(0, 0, -3), App.Rotation())
sketch17.addGeometry([
    Part.Circle(App.Vector(39.25, -59, 0), App.Vector(0, 0, 1), 3.75),
    Part.Circle(App.Vector(-40.5, -29, 0), App.Vector(0, 0, 1), 3.75),
], False)
sketch17.addConstraint([
    Sketcher.Constraint("Equal", 0, 1),
    Sketcher.Constraint("Diameter", 0, Q("7.5 mm")),
    Sketcher.Constraint("DistanceY", 0, 3, -1, 1, Q("59 mm")),
    Sketcher.Constraint("DistanceY", 1, 3, -1, 1, Q("29 mm")),
    Sketcher.Constraint("DistanceX", 1, 3, -1, 1, Q("40.5 mm")),
    Sketcher.Constraint("DistanceX", -1, 1, 0, 3, Q("39.25 mm")),
])
pad8 = doc.addObject("PartDesign::Pad", "Pad007")
body.addObject(pad8)
pad8.Profile = sketch17
pad8.Length = 5
pad8.Reversed = True

sketch18 = doc.addObject("Sketcher::SketchObject", "Sketch017")
body.addObject(sketch18)
sketch18.AttachmentSupport = (doc.XZ_Plane, [""])
sketch18.MapMode = "FlatFace"
sketch18.AttachmentOffset = App.Placement(App.Vector(0, 0, -8), App.Rotation())
sketch18.addGeometry(Part.Circle(App.Vector(39.25, -59, 0), App.Vector(0, 0, 1), 1.5), False)
sketch18.addConstraint([
    Sketcher.Constraint("Diameter", 0, Q("3 mm")),
    Sketcher.Constraint("DistanceY", 0, 3, -1, 1, Q("59 mm")),
    Sketcher.Constraint("DistanceX", -1, 1, 0, 3, Q("39.25 mm")),
])
doc.recompute()
hole4 = doc.addObject("PartDesign::Hole", "Hole003")
body.addObject(hole4)
hole4.Profile = sketch18
hole4.ThreadType = "None"
hole4.Diameter = 3
hole4.DepthType = "Dimension"
hole4.Depth = 6
hole4.DrillPoint = "Flat"
hole4.Reversed = True

sketch19 = doc.addObject("Sketcher::SketchObject", "Sketch018")
body.addObject(sketch19)
sketch19.AttachmentSupport = (doc.XZ_Plane, [""])
sketch19.MapMode = "FlatFace"
sketch19.AttachmentOffset = App.Placement(App.Vector(0, 0, -8), App.Rotation())
sketch19.addGeometry(Part.Circle(App.Vector(-40.5, -29, 0), App.Vector(0, 0, 1), 1.5), False)
sketch19.addConstraint([
    Sketcher.Constraint("Diameter", 0, Q("3 mm")),
    Sketcher.Constraint("DistanceY", 0, 3, -1, 1, Q("29 mm")),
    Sketcher.Constraint("DistanceX", 0, 3, -1, 1, Q("40.5 mm")),
])
doc.recompute()
hole5 = doc.addObject("PartDesign::Hole", "Hole004")
body.addObject(hole5)
hole5.Profile = sketch19
hole5.ThreadType = "None"
hole5.Diameter = 3
hole5.DepthType = "Dimension"
hole5.Depth = 6
hole5.DrillPoint = "Flat"
hole5.Reversed = True

doc.recompute()
